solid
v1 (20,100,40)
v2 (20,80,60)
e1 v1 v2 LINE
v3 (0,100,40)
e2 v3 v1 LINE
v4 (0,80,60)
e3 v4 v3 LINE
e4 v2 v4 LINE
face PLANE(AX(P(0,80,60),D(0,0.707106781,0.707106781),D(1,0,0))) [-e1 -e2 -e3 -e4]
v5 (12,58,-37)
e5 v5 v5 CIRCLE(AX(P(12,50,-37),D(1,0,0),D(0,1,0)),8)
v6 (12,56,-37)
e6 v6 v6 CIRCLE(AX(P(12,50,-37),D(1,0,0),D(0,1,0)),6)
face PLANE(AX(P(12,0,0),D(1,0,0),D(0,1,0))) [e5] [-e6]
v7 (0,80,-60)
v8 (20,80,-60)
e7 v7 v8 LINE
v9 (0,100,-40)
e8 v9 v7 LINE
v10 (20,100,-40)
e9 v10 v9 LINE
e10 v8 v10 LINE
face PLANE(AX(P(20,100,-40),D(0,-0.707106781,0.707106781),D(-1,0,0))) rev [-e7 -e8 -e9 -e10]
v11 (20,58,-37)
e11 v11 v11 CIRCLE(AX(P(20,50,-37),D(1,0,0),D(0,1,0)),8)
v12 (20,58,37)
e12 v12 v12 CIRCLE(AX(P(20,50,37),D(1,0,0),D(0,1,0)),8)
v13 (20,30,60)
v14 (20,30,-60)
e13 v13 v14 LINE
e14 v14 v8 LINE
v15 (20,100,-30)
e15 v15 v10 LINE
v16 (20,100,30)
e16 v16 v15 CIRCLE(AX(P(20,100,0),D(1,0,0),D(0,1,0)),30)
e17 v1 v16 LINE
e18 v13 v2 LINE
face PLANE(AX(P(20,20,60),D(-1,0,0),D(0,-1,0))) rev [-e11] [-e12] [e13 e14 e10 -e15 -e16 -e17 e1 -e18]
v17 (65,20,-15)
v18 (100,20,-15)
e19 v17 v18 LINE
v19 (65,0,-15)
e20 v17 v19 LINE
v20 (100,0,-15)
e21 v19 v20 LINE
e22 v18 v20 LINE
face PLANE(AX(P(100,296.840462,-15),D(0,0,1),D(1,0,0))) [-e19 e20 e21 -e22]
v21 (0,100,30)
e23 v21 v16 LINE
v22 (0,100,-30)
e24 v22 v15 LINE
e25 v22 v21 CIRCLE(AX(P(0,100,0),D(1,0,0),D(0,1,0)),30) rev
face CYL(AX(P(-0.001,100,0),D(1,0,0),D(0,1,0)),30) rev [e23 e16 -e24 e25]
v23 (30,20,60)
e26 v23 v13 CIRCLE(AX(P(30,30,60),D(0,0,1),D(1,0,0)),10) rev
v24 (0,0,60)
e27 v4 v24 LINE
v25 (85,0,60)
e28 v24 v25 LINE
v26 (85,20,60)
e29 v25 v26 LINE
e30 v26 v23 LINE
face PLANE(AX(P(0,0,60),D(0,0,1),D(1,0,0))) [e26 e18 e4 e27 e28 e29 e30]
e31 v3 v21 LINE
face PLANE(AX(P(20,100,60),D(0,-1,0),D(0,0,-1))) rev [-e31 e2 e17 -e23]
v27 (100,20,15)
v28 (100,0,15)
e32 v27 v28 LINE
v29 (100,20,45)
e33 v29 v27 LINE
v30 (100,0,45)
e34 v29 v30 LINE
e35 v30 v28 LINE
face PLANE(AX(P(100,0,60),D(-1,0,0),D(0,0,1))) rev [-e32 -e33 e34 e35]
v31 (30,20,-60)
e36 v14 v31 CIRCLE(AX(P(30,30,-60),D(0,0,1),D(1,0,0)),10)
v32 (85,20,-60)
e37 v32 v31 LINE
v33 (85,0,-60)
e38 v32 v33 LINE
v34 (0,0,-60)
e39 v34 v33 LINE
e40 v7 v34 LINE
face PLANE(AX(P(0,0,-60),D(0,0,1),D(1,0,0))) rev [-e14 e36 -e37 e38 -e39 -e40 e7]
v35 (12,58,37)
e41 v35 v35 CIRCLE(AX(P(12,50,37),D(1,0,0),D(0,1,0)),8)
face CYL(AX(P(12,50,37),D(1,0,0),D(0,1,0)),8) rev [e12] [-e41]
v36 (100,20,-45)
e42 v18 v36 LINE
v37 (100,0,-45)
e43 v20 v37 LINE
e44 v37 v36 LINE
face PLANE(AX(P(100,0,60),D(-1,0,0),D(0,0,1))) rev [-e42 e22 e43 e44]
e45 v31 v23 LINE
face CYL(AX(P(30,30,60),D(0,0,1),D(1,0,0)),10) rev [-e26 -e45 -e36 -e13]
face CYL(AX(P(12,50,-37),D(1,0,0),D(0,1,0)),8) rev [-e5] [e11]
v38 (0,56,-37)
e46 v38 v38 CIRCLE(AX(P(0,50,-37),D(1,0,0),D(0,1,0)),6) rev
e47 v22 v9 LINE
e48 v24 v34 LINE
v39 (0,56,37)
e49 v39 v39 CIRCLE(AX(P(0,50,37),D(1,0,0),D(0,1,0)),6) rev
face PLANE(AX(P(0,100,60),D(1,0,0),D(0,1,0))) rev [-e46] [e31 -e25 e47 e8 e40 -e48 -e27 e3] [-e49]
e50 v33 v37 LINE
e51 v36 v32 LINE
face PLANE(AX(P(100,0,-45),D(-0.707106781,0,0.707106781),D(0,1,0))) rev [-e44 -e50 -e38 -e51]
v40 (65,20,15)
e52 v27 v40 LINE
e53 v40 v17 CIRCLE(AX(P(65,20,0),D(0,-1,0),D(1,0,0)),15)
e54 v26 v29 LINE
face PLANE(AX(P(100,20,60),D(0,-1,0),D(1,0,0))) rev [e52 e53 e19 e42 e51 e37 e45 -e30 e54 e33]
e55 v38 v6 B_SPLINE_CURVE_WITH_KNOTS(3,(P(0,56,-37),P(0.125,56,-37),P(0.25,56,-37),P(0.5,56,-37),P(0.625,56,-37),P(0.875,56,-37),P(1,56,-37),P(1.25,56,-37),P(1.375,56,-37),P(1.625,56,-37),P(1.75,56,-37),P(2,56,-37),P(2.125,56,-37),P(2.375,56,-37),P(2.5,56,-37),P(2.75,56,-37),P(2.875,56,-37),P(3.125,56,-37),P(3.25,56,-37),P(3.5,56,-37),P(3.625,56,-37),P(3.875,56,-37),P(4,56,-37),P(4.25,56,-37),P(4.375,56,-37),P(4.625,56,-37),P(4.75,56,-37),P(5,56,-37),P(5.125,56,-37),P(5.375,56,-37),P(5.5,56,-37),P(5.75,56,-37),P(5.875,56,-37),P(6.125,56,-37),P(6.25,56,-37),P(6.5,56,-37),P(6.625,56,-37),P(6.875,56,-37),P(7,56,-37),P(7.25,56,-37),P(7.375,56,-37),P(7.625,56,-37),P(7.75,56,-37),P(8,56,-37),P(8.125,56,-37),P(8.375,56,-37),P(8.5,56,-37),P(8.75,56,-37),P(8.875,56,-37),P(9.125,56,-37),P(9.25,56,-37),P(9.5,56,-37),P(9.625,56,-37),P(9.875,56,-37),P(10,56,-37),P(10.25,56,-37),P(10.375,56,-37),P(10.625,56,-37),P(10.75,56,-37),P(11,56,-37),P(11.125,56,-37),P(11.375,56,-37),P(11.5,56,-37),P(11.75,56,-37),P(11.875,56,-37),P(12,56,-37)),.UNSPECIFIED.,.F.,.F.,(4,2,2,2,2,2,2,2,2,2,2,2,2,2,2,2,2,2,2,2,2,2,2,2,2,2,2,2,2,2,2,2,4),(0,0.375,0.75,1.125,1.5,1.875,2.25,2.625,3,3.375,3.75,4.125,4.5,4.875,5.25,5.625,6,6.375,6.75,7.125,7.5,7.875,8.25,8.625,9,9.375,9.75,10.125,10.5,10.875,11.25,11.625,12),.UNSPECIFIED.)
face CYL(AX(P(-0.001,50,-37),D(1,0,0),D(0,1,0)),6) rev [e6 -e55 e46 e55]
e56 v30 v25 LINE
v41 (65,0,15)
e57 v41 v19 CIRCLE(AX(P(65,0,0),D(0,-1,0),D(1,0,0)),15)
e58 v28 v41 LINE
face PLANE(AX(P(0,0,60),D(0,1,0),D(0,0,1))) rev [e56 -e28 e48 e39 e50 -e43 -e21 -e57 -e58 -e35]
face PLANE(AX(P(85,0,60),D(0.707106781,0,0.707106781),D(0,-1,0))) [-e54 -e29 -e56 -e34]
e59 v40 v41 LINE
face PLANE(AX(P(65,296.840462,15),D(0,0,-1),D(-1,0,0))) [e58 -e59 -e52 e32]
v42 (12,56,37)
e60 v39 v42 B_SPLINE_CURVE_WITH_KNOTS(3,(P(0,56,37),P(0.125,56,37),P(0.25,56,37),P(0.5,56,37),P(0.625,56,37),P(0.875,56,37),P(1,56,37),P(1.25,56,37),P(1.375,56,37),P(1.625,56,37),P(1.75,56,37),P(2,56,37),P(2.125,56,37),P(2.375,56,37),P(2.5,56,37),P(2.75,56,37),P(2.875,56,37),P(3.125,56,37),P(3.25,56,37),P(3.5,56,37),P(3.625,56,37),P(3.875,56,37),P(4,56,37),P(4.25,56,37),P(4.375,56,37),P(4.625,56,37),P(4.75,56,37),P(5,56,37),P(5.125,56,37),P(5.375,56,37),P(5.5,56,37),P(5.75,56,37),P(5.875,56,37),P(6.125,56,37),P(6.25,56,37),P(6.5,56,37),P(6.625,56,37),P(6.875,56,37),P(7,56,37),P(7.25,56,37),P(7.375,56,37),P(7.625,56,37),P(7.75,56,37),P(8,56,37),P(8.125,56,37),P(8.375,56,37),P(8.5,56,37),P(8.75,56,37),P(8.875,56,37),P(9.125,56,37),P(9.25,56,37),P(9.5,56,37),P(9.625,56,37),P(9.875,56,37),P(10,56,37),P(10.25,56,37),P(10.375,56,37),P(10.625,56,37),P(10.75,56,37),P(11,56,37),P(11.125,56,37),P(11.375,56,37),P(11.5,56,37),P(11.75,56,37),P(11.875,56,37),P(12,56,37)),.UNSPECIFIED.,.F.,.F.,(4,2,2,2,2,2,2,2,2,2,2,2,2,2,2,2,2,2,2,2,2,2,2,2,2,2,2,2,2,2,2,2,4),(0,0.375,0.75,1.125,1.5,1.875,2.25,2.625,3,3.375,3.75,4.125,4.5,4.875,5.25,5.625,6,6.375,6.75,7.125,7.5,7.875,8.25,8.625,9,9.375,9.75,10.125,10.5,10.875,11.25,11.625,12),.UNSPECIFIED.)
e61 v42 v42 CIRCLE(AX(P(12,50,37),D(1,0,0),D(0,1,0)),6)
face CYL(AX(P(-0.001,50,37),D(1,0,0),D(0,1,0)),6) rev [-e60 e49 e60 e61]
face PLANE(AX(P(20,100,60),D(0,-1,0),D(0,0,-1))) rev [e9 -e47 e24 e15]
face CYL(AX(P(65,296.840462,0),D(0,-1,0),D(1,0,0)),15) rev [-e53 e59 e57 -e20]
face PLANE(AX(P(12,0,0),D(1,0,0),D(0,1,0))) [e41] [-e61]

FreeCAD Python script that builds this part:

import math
import FreeCAD as App
import Part
import Sketcher
Q = App.Units.Quantity


def edges_at(feature, points):
    """Names of the edges that pass closest to the given points."""
    edges = feature.Shape.Edges
    near = lambda p: min(range(len(edges)), key=lambda i: edges[i].distToShape(Part.Vertex(*p))[0])
    return sorted({f"Edge{near(p) + 1}" for p in points})


def add_polygon(sketch, points):
    """Adds a closed chain of lines whose ends are joined by coincident constraints."""
    first, n = sketch.GeometryCount, len(points)
    for a, b in zip(points, points[1:] + points[:1]):
        sketch.addGeometry(Part.LineSegment(App.Vector(*a, 0), App.Vector(*b, 0)), False)
    for i in range(n):
        sketch.addConstraint(Sketcher.Constraint("Coincident", first + i, 2, first + (i + 1) % n, 1))

doc = App.newDocument("Part")
body = doc.addObject("PartDesign::Body", "Body")

# Sketch on XY plane
sketch1 = body.newObject("Sketcher::SketchObject", "Sketch")
sketch1.AttachmentSupport = (doc.getObject("XY_Plane"), [""])
sketch1.MapMode = "FlatFace"
add_polygon(sketch1, [(0, 0), (100, 0), (100, 20), (20, 20), (20, 100), (0, 100)])  # lines 0-5
sketch1.addConstraint(Sketcher.Constraint("Horizontal", 0))
sketch1.addConstraint(Sketcher.Constraint("Vertical", 1))
sketch1.addConstraint(Sketcher.Constraint("Horizontal", 2))
sketch1.addConstraint(Sketcher.Constraint("Vertical", 3))
sketch1.addConstraint(Sketcher.Constraint("Horizontal", 4))
sketch1.addConstraint(Sketcher.Constraint("Vertical", 5))
sketch1.addConstraint(Sketcher.Constraint("Coincident", 5, 2, -1, 1))
sketch1.addConstraint(Sketcher.Constraint("Equal", 4, 1))
sketch1.addConstraint(Sketcher.Constraint("Equal", 2, 3))
sketch1.addConstraint(Sketcher.Constraint("DistanceX", 0, 1, 0, 2, Q("100 mm")))
sketch1.addConstraint(Sketcher.Constraint("DistanceX", 2, 2, 2, 1, Q("80 mm")))
pad1 = body.newObject("PartDesign::Pad", "Pad")
pad1.Profile = sketch1
pad1.Length = 120
pad1.Midplane = True
doc.recompute()

chamfer = body.newObject("PartDesign::Chamfer", "Chamfer")
chamfer.Base = (pad1, edges_at(pad1, [(100, 10, 60), (100, 10, -60)]))
chamfer.Size = 15
doc.recompute()

chamfer2 = body.newObject("PartDesign::Chamfer", "Chamfer001")
chamfer2.Base = (chamfer, edges_at(chamfer, [(10, 100, 60), (10, 100, -60)]))
chamfer2.Size = 20
doc.recompute()

fillet = body.newObject("PartDesign::Fillet", "Fillet")
fillet.Base = (chamfer2, edges_at(chamfer2, [(20, 20, 0)]))
fillet.Radius = 10

# Sketch on YZ plane
sketch2 = body.newObject("Sketcher::SketchObject", "Sketch001")
sketch2.AttachmentSupport = (doc.getObject("YZ_Plane"), [""])
sketch2.MapMode = "FlatFace"
sketch2.AttachmentOffset = App.Placement(App.Vector(0, 0, 20), App.Rotation())
sketch2.addGeometry(Part.LineSegment(App.Vector(100, -30, 0), App.Vector(100, 30, 0)), False)
sketch2.addGeometry(Part.ArcOfCircle(Part.Circle(App.Vector(100, 0, 0), App.Vector(0, 0, 1), 30), math.radians(90), math.radians(270)), False)
sketch2.addConstraint(Sketcher.Constraint("Coincident", 0, 1, 1, 2))
sketch2.addConstraint(Sketcher.Constraint("Coincident", 1, 1, 0, 2))
sketch2.addConstraint(Sketcher.Constraint("Vertical", 0))
sketch2.addConstraint(Sketcher.Constraint("PointOnObject", 1, 3, -1))
sketch2.addConstraint(Sketcher.Constraint("Vertical", 1, 3, 0, 1))
sketch2.addConstraint(Sketcher.Constraint("Radius", 1, Q("30 mm")))
sketch2.addConstraint(Sketcher.Constraint("DistanceX", -1, 1, 1, 3, Q("100 mm")))
pocket1 = body.newObject("PartDesign::Pocket", "Pocket")
pocket1.Profile = sketch2
pocket1.Type = "UpToFirst"

# Sketch on YZ plane
sketch3 = body.newObject("Sketcher::SketchObject", "Sketch002")
sketch3.AttachmentSupport = (doc.getObject("YZ_Plane"), [""])
sketch3.MapMode = "FlatFace"
sketch3.AttachmentOffset = App.Placement(App.Vector(0, 0, 20), App.Rotation())
sketch3.addGeometry(Part.Circle(App.Vector(50, -37, 0), App.Vector(0, 0, 1), 6), False)
sketch3.addConstraint(Sketcher.Constraint("Diameter", 0, Q("12 mm")))
sketch3.addConstraint(Sketcher.Constraint("DistanceX", -1, 1, 0, 3, Q("50 mm")))
sketch3.addConstraint(Sketcher.Constraint("DistanceY", 0, 3, -1, 1, Q("37 mm")))
pocket2 = body.newObject("PartDesign::Pocket", "Pocket001")
pocket2.Profile = sketch3
pocket2.Type = "UpToFirst"

# Sketch on YZ plane
sketch4 = body.newObject("Sketcher::SketchObject", "Sketch003")
sketch4.AttachmentSupport = (doc.getObject("YZ_Plane"), [""])
sketch4.MapMode = "FlatFace"
sketch4.AttachmentOffset = App.Placement(App.Vector(0, 0, 20), App.Rotation())
sketch4.addGeometry(Part.Circle(App.Vector(50, 37, 0), App.Vector(0, 0, 1), 6), False)
sketch4.addConstraint(Sketcher.Constraint("Diameter", 0, Q("12 mm")))
sketch4.addConstraint(Sketcher.Constraint("DistanceX", -1, 1, 0, 3, Q("50 mm")))
sketch4.addConstraint(Sketcher.Constraint("DistanceY", -1, 1, 0, 3, Q("37 mm")))
pocket3 = body.newObject("PartDesign::Pocket", "Pocket002")
pocket3.Profile = sketch4
pocket3.Type = "UpToFirst"

# Sketch on YZ plane
sketch5 = body.newObject("Sketcher::SketchObject", "Sketch004")
sketch5.AttachmentSupport = (doc.getObject("YZ_Plane"), [""])
sketch5.MapMode = "FlatFace"
sketch5.AttachmentOffset = App.Placement(App.Vector(0, 0, 20), App.Rotation())
sketch5.addGeometry(Part.Circle(App.Vector(50, -37, 0), App.Vector(0, 0, 1), 8), False)
sketch5.addGeometry(Part.Circle(App.Vector(50, -37, 0), App.Vector(0, 0, 1), 6), False)
sketch5.addGeometry(Part.Circle(App.Vector(50, 37, 0), App.Vector(0, 0, 1), 8), False)
sketch5.addGeometry(Part.Circle(App.Vector(50, 37, 0), App.Vector(0, 0, 1), 6), False)
sketch5.addConstraint(Sketcher.Constraint("Coincident", 1, 3, 0, 3))
sketch5.addConstraint(Sketcher.Constraint("Coincident", 3, 3, 2, 3))
sketch5.addConstraint(Sketcher.Constraint("Equal", 0, 2))
sketch5.addConstraint(Sketcher.Constraint("Equal", 1, 3))
sketch5.addConstraint(Sketcher.Constraint("Symmetric", 0, 3, 2, 3, -1))
sketch5.addConstraint(Sketcher.Constraint("Diameter", 0, Q("16 mm")))
sketch5.addConstraint(Sketcher.Constraint("Diameter", 1, Q("12 mm")))
sketch5.addConstraint(Sketcher.Constraint("DistanceX", -1, 1, 0, 3, Q("50 mm")))
sketch5.addConstraint(Sketcher.Constraint("DistanceY", 0, 3, -1, 1, Q("37 mm")))
pocket4 = body.newObject("PartDesign::Pocket", "Pocket003")
pocket4.Profile = sketch5
pocket4.Length = 8

# Sketch on XZ plane
sketch6 = body.newObject("Sketcher::SketchObject", "Sketch005")
sketch6.AttachmentSupport = (doc.getObject("XZ_Plane"), [""])
sketch6.MapMode = "FlatFace"
sketch6.AttachmentOffset = App.Placement(App.Vector(0, 0, -20), App.Rotation())
sketch6.addGeometry(Part.ArcOfCircle(Part.Circle(App.Vector(65, 0, 0), App.Vector(0, 0, 1), 15), math.radians(90), math.radians(270)), False)
sketch6.addGeometry(Part.LineSegment(App.Vector(65, 15, 0), App.Vector(880, 15, 0)), False)
sketch6.addGeometry(Part.LineSegment(App.Vector(880, 15, 0), App.Vector(880, -15, 0)), False)
sketch6.addGeometry(Part.LineSegment(App.Vector(880, -15, 0), App.Vector(65, -15, 0)), False)
sketch6.addConstraint(Sketcher.Constraint("Tangent", 0, 1, 1, 1))
sketch6.addConstraint(Sketcher.Constraint("Coincident", 1, 2, 2, 1))
sketch6.addConstraint(Sketcher.Constraint("Coincident", 2, 2, 3, 1))
sketch6.addConstraint(Sketcher.Constraint("Tangent", 3, 2, 0, 2))
sketch6.addConstraint(Sketcher.Constraint("Horizontal", 1))
sketch6.addConstraint(Sketcher.Constraint("Vertical", 2))
sketch6.addConstraint(Sketcher.Constraint("Horizontal", 3))
sketch6.addConstraint(Sketcher.Constraint("PointOnObject", 0, 3, -1))
sketch6.addConstraint(Sketcher.Constraint("Radius", 0, Q("15 mm")))
sketch6.addConstraint(Sketcher.Constraint("DistanceX", 1, 1, 1, 2, Q("815 mm")))
sketch6.addConstraint(Sketcher.Constraint("DistanceX", -1, 1, 0, 3, Q("65 mm")))
pocket5 = body.newObject("PartDesign::Pocket", "Pocket004")
pocket5.Profile = sketch6
pocket5.Type = "ThroughAll"
pocket5.Midplane = True

doc.recompute()
